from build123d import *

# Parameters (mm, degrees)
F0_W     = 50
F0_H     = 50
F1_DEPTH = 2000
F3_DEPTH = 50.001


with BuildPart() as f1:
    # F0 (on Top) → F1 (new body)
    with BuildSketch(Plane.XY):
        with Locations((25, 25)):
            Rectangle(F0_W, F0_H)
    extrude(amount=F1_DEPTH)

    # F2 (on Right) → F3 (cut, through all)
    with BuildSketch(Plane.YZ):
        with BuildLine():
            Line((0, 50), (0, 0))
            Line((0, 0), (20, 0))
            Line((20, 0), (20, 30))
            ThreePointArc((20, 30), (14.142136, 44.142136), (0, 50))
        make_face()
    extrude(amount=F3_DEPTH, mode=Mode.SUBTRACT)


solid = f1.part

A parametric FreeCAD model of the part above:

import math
import FreeCAD as App
import Part
import Sketcher

V = App.Vector
Q = App.Units.Quantity

doc = App.newDocument("Part")
body = doc.addObject("PartDesign::Body", "Body")

sketch1 = body.newObject("Sketcher::SketchObject", "Sketch")
sketch1.AttachmentSupport = (doc.getObject("XY_Plane"), [""])
sketch1.MapMode = "FlatFace"
sketch1.addGeometry(Part.LineSegment(V(0, 50, 0), V(0, 0, 0)), False)
sketch1.addGeometry(Part.LineSegment(V(0, 0, 0), V(50, 0, 0)), False)
sketch1.addGeometry(Part.LineSegment(V(50, 0, 0), V(50, 50, 0)), False)
sketch1.addGeometry(Part.LineSegment(V(50, 50, 0), V(0, 50, 0)), False)
sketch1.addConstraint(Sketcher.Constraint("Coincident", 0, 2, 1, 1))
sketch1.addConstraint(Sketcher.Constraint("Coincident", 1, 2, 2, 1))
sketch1.addConstraint(Sketcher.Constraint("Coincident", 2, 2, 3, 1))
sketch1.addConstraint(Sketcher.Constraint("Coincident", 3, 2, 0, 1))
sketch1.addConstraint(Sketcher.Constraint("Vertical", 0))
sketch1.addConstraint(Sketcher.Constraint("Horizontal", 1))
sketch1.addConstraint(Sketcher.Constraint("Vertical", 2))
sketch1.addConstraint(Sketcher.Constraint("Horizontal", 3))
sketch1.addConstraint(Sketcher.Constraint("Coincident", 0, 2, -1, 1))
sketch1.addConstraint(Sketcher.Constraint("Equal", 3, 0))
sketch1.addConstraint(Sketcher.Constraint("DistanceX", 1, 1, 1, 2, Q("50 mm")))
pad1 = body.newObject("PartDesign::Pad", "Pad")
pad1.Profile = sketch1
pad1.Length = 2000

sketch2 = body.newObject("Sketcher::SketchObject", "Sketch001")
sketch2.AttachmentSupport = (doc.getObject("YZ_Plane"), [""])
sketch2.MapMode = "FlatFace"
sketch2.addGeometry(Part.LineSegment(V(0, 50, 0), V(0, 0, 0)), False)
sketch2.addGeometry(Part.LineSegment(V(0, 0, 0), V(20, 0, 0)), False)
sketch2.addGeometry(Part.LineSegment(V(20, 0, 0), V(20, 30, 0)), False)
sketch2.addGeometry(Part.ArcOfCircle(Part.Circle(V(0, 30, 0), V(0, 0, 1), 20), math.radians(0), math.radians(90)), False)
sketch2.addConstraint(Sketcher.Constraint("Coincident", 0, 2, 1, 1))
sketch2.addConstraint(Sketcher.Constraint("Coincident", 1, 2, 2, 1))
sketch2.addConstraint(Sketcher.Constraint("Tangent", 2, 2, 3, 1))
sketch2.addConstraint(Sketcher.Constraint("Coincident", 3, 2, 0, 1))
sketch2.addConstraint(Sketcher.Constraint("Vertical", 0))
sketch2.addConstraint(Sketcher.Constraint("Horizontal", 1))
sketch2.addConstraint(Sketcher.Constraint("Vertical", 2))
sketch2.addConstraint(Sketcher.Constraint("Coincident", 0, 2, -1, 1))
sketch2.addConstraint(Sketcher.Constraint("PointOnObject", 3, 3, -2))
sketch2.addConstraint(Sketcher.Constraint("Radius", 3, Q("19.999999 mm")))
sketch2.addConstraint(Sketcher.Constraint("DistanceY", 0, 2, 0, 1, Q("50 mm")))
pocket1 = body.newObject("PartDesign::Pocket", "Pocket")
pocket1.Profile = sketch2
pocket1.Type = "ThroughAll"
pocket1.Reversed = True

doc.recompute()
